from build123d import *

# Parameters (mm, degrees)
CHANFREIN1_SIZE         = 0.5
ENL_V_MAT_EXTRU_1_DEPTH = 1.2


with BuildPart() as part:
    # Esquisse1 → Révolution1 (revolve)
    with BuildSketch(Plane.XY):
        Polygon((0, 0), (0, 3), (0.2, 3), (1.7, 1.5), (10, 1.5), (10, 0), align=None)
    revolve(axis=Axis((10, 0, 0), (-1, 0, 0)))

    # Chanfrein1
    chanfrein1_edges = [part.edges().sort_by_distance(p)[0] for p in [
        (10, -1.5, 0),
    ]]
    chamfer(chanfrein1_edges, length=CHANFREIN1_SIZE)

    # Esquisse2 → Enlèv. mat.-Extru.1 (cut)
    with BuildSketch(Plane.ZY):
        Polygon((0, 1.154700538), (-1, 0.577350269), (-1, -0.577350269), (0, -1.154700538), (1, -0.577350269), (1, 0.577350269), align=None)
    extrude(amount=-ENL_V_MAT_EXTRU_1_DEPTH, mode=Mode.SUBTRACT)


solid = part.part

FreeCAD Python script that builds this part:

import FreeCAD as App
import Part
import Sketcher
from FreeCAD import Vector
Q = App.Units.Quantity


def edges_at(feature, points):
    """Names of the edges that pass closest to the given points."""
    edges = feature.Shape.Edges
    near = lambda p: min(range(len(edges)), key=lambda i: edges[i].distToShape(Part.Vertex(*p))[0])
    return sorted({f"Edge{near(p) + 1}" for p in points})

doc = App.newDocument("Part")
body = doc.addObject("PartDesign::Body", "Body")

sketch1 = body.newObject("Sketcher::SketchObject", "Sketch")
sketch1.AttachmentSupport = (doc.getObject("XY_Plane"), [""])
sketch1.MapMode = "FlatFace"
sketch1.addGeometry([
    Part.LineSegment(Vector(0, 3, 0), Vector(0, 0, 0)),
    Part.LineSegment(Vector(0, 0, 0), Vector(10, 0, 0)),
    Part.LineSegment(Vector(10, 0, 0), Vector(10, 1.5, 0)),
    Part.LineSegment(Vector(10, 1.5, 0), Vector(1.7, 1.5, 0)),
    Part.LineSegment(Vector(1.7, 1.5, 0), Vector(0.2, 3, 0)),
    Part.LineSegment(Vector(0.2, 3, 0), Vector(0, 3, 0)),
], False)
sketch1.addConstraint([
    Sketcher.Constraint("Coincident", 0, 2, 1, 1),
    Sketcher.Constraint("Coincident", 1, 2, 2, 1),
    Sketcher.Constraint("Coincident", 2, 2, 3, 1),
    Sketcher.Constraint("Coincident", 3, 2, 4, 1),
    Sketcher.Constraint("Coincident", 4, 2, 5, 1),
    Sketcher.Constraint("Coincident", 5, 2, 0, 1),
    Sketcher.Constraint("Vertical", 0),
    Sketcher.Constraint("Horizontal", 1),
    Sketcher.Constraint("Vertical", 2),
    Sketcher.Constraint("Horizontal", 3),
    Sketcher.Constraint("Horizontal", 5),
    Sketcher.Constraint("Coincident", 0, 2, -1, 1),
    Sketcher.Constraint("DistanceX", 1, 1, 1, 2, 10.0),
    Sketcher.Constraint("DistanceY", 0, 2, 0, 1, 3.0),
    Sketcher.Constraint("Angle", 4, Q("135 deg")),
    Sketcher.Constraint("DistanceX", 3, 2, 3, 1, 8.3),
    Sketcher.Constraint("DistanceX", 5, 2, 5, 1, 0.2),
])
revolution = body.newObject("PartDesign::Revolution", "Revolution")
revolution.Profile = sketch1
revolution.ReferenceAxis = (sketch1, ["H_Axis"])
revolution.Angle = 360
doc.recompute()

chamfer = body.newObject("PartDesign::Chamfer", "Chamfer")
chamfer.Base = (revolution, edges_at(revolution, [(10, -1.5, 0)]))
chamfer.Size = 0.5

sketch2 = body.newObject("Sketcher::SketchObject", "Sketch001")
sketch2.AttachmentSupport = (doc.getObject("YZ_Plane"), [""])
sketch2.MapMode = "FlatFace"
sketch2.addGeometry([
    Part.LineSegment(Vector(1.2, 0, 0), Vector(0.6, -1, 0)),
    Part.LineSegment(Vector(0.6, -1, 0), Vector(-0.6, -1, 0)),
    Part.LineSegment(Vector(-0.6, -1, 0), Vector(-1.2, 0, 0)),
    Part.LineSegment(Vector(-1.2, 0, 0), Vector(-0.6, 1, 0)),
    Part.LineSegment(Vector(-0.6, 1, 0), Vector(0.6, 1, 0)),
    Part.LineSegment(Vector(0.6, 1, 0), Vector(1.2, 0, 0)),
], False)
sketch2.addConstraint([
    Sketcher.Constraint("Coincident", 0, 2, 1, 1),
    Sketcher.Constraint("Coincident", 1, 2, 2, 1),
    Sketcher.Constraint("Coincident", 2, 2, 3, 1),
    Sketcher.Constraint("Coincident", 3, 2, 4, 1),
    Sketcher.Constraint("Coincident", 4, 2, 5, 1),
    Sketcher.Constraint("Coincident", 5, 2, 0, 1),
    Sketcher.Constraint("Horizontal", 1),
    Sketcher.Constraint("Horizontal", 4),
    Sketcher.Constraint("Symmetric", 0, 2, 3, 2, -1, 1),
    Sketcher.Constraint("Symmetric", 2, 2, 5, 2, -1, 1),
    Sketcher.Constraint("PointOnObject", 2, 2, -1),
    Sketcher.Constraint("Parallel", 2, 5),
    Sketcher.Constraint("Vertical", 1, 2, 3, 2),
    Sketcher.Constraint("Angle", 0, Q("-120 deg")),
    Sketcher.Constraint("DistanceY", 0, 2, -1, 1, 1.0),
    Sketcher.Constraint("DistanceX", 1, 2, 1, 1, 1.154701),
])
pocket1 = body.newObject("PartDesign::Pocket", "Pocket")
pocket1.Profile = sketch2
pocket1.Length = 1.2
pocket1.Reversed = True

doc.recompute()
